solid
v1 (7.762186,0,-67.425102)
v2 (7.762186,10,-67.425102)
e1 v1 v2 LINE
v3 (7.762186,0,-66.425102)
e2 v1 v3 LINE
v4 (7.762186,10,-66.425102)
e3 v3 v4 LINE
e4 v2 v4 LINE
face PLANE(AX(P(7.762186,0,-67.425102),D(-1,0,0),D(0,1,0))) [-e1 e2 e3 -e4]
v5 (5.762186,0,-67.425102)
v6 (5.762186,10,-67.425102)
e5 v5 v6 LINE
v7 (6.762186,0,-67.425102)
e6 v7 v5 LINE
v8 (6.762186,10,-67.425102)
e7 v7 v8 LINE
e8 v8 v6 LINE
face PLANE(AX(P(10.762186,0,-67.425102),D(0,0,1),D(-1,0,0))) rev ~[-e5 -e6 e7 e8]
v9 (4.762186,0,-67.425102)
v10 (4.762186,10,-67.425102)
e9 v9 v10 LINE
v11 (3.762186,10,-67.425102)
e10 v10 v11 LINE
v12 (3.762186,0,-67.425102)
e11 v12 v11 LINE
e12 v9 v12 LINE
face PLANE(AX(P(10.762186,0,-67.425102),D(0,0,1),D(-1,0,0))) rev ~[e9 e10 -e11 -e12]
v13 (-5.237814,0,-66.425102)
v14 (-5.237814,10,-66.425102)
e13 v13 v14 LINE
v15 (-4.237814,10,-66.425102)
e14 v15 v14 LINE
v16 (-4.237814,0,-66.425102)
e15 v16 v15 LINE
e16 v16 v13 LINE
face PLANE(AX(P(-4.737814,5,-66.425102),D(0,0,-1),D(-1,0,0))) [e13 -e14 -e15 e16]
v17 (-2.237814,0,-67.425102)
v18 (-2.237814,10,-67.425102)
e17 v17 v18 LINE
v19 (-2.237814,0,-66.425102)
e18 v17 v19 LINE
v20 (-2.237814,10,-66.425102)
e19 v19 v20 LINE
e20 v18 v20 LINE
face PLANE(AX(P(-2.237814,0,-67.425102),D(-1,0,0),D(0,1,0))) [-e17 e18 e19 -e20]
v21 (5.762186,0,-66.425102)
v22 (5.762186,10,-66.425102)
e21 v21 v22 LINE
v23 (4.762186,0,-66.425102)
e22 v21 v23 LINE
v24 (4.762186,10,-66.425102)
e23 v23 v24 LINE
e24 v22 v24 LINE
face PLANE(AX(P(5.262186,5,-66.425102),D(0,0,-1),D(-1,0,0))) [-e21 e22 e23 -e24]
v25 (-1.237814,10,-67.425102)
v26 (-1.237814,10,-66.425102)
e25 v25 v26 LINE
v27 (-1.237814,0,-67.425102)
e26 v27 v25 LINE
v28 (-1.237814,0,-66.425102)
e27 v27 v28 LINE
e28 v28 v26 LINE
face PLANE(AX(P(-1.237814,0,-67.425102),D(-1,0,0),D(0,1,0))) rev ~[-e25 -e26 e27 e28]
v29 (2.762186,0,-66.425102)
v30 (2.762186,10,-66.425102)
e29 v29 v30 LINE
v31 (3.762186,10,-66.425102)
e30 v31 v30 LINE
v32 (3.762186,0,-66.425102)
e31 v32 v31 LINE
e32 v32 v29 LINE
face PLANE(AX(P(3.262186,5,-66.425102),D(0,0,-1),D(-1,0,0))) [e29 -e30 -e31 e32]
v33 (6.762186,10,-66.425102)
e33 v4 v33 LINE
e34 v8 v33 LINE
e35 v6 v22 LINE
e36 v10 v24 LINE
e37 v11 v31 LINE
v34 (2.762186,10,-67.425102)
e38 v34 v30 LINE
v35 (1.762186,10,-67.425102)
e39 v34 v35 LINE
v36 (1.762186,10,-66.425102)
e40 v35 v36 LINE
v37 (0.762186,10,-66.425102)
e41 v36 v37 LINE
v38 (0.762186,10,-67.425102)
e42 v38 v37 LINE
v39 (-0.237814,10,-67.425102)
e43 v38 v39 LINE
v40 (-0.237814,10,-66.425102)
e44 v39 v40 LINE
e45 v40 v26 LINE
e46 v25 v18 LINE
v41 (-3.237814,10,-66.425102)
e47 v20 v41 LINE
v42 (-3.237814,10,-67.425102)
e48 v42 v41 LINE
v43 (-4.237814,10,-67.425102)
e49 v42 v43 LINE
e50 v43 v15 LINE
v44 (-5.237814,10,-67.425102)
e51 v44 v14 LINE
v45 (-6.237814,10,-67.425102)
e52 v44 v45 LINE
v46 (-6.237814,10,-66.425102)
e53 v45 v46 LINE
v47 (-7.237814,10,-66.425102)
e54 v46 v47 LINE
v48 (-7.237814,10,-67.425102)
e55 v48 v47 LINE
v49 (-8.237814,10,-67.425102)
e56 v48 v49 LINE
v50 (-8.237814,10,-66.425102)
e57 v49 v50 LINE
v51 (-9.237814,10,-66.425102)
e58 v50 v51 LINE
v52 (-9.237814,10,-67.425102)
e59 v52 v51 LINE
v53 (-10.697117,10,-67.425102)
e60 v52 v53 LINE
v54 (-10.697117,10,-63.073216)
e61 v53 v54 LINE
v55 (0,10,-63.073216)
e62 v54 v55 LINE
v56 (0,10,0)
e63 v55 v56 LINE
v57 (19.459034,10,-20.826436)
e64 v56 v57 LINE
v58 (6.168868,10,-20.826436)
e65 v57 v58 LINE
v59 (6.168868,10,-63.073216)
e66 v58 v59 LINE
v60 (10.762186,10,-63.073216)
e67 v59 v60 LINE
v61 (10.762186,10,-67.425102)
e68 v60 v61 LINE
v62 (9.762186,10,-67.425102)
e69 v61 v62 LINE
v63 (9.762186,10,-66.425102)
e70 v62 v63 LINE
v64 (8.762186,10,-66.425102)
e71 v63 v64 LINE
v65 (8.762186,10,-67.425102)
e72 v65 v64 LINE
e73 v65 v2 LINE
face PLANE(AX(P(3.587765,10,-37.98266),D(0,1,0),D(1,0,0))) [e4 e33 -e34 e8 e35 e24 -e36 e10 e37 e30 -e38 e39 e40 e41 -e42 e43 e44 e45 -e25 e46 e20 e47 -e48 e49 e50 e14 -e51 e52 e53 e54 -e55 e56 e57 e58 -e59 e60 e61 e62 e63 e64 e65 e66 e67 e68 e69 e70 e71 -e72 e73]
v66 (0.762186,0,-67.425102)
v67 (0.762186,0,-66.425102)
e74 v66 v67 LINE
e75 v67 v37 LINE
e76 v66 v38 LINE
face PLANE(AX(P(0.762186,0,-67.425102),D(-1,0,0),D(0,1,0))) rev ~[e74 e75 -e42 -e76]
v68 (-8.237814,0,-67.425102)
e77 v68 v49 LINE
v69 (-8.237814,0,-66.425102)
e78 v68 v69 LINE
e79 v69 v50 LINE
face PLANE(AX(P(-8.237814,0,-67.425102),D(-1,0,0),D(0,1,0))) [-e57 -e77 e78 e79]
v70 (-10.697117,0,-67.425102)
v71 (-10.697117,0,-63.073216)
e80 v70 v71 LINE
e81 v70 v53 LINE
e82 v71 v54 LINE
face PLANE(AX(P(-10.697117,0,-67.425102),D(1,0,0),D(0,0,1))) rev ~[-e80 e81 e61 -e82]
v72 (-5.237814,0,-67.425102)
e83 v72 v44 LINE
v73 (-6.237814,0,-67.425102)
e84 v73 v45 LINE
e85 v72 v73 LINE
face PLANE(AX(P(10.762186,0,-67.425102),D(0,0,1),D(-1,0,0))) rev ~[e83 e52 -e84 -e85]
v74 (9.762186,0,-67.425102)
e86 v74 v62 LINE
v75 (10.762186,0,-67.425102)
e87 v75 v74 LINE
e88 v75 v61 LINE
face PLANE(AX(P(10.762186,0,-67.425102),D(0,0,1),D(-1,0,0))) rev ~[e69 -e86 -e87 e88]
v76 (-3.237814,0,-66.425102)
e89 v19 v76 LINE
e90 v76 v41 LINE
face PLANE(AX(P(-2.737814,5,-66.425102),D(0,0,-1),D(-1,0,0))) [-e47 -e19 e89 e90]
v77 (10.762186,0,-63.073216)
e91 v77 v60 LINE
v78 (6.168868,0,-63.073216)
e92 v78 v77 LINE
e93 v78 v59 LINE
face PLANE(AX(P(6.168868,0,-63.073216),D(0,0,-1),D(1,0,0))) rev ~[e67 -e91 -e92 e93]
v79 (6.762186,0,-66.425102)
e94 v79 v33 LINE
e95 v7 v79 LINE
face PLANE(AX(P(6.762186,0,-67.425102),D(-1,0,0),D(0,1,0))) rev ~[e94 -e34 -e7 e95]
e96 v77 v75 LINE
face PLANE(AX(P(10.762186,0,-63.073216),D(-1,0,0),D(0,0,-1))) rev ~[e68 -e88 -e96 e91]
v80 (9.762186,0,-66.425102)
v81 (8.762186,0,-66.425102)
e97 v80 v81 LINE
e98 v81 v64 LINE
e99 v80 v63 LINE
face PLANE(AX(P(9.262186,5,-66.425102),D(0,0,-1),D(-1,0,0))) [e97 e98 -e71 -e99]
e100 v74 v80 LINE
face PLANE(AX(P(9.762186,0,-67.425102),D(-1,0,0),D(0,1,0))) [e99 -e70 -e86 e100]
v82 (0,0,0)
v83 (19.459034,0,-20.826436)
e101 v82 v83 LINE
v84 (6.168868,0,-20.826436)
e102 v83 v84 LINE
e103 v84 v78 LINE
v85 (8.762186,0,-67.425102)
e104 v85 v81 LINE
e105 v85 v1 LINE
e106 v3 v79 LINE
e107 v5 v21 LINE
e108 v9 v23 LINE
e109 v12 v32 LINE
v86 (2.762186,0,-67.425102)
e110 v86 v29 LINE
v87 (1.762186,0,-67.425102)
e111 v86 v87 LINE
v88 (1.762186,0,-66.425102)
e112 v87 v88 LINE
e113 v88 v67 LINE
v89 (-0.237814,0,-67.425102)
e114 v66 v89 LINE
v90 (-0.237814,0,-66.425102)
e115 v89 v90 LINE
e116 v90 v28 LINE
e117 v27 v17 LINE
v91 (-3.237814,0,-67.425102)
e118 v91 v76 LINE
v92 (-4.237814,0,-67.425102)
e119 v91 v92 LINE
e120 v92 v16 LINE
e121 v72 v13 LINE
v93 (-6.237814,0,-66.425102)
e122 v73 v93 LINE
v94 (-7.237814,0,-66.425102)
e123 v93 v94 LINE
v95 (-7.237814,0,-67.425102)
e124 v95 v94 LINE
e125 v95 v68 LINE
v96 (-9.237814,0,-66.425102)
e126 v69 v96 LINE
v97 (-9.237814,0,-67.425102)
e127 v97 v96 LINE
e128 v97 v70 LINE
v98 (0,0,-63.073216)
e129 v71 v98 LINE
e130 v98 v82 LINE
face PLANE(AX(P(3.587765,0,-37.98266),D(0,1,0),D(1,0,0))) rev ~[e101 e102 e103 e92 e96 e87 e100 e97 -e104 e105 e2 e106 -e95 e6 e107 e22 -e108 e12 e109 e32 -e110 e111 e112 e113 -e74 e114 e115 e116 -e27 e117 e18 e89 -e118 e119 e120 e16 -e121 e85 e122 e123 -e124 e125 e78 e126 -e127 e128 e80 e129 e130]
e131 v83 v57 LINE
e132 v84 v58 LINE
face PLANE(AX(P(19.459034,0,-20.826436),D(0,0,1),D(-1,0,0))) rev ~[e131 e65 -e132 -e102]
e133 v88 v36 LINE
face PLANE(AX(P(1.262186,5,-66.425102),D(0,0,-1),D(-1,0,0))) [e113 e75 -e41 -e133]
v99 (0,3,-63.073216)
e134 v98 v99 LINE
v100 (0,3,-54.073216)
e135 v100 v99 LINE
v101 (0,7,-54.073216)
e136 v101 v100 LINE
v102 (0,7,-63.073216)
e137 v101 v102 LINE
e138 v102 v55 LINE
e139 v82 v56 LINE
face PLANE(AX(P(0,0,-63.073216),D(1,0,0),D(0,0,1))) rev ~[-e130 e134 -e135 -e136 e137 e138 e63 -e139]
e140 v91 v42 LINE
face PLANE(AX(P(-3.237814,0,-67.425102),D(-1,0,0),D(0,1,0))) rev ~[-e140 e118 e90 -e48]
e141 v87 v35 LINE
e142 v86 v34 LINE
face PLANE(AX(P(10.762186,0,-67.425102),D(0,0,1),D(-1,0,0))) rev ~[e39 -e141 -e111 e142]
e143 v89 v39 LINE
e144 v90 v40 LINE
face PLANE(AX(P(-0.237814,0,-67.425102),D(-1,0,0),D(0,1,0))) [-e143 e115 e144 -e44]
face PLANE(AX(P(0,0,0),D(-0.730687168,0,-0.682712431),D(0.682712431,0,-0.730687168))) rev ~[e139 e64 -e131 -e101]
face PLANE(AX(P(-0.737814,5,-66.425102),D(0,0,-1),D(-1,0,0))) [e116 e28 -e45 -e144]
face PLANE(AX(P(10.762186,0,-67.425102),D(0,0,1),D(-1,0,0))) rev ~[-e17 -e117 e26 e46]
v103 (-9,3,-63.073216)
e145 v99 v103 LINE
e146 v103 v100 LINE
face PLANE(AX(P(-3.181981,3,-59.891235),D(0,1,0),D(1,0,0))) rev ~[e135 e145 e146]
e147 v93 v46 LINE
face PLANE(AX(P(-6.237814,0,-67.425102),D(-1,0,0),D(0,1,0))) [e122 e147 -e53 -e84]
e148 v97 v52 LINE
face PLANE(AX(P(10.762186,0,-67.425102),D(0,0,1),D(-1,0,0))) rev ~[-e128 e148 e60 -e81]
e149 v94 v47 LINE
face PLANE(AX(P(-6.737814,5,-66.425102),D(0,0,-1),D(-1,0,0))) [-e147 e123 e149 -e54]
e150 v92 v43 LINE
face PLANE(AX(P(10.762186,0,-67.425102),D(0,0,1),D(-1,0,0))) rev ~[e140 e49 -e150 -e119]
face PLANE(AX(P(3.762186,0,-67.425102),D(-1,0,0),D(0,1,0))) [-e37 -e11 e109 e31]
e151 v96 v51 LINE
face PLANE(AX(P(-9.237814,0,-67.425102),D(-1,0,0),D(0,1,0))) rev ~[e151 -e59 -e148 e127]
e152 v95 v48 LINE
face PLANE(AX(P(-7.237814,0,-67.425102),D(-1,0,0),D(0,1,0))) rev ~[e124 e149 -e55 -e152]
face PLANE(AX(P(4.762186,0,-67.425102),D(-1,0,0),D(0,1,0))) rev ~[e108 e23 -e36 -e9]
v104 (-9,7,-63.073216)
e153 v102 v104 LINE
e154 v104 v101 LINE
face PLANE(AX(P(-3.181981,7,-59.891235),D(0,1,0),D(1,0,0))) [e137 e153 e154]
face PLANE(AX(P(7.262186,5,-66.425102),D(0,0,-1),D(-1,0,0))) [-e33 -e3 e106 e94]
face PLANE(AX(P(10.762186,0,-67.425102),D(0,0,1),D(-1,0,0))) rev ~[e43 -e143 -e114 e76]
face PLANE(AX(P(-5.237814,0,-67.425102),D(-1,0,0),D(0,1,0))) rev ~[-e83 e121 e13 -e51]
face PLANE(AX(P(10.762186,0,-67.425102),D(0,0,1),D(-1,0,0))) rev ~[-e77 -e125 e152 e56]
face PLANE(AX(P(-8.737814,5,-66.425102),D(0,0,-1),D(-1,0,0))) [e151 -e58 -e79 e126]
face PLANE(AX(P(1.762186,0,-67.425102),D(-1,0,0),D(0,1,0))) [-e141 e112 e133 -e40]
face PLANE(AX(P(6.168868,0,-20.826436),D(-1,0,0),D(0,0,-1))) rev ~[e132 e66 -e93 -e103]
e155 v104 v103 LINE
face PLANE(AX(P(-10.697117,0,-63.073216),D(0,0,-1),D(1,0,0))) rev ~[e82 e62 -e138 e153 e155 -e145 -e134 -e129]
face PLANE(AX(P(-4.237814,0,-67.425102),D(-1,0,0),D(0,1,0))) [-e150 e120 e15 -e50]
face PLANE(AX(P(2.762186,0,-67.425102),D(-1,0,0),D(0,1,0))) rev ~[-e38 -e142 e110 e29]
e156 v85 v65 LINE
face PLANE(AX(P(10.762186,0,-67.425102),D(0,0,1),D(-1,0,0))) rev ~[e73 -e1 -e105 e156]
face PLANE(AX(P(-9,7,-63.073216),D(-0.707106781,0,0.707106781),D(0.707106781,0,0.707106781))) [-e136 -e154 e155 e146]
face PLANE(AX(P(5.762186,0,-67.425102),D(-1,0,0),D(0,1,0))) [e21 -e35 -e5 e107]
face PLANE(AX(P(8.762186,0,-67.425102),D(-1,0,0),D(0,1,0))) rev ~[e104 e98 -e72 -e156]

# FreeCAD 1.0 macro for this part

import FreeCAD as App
import Part
import Sketcher
from FreeCAD import Vector


def add_polygon(sketch, points):
    """Adds a closed chain of lines whose ends are joined by coincident constraints."""
    first, n = sketch.GeometryCount, len(points)
    for a, b in zip(points, points[1:] + points[:1]):
        sketch.addGeometry(Part.LineSegment(App.Vector(*a, 0), App.Vector(*b, 0)), False)
    for i in range(n):
        sketch.addConstraint(Sketcher.Constraint("Coincident", first + i, 2, first + (i + 1) % n, 1))

doc = App.newDocument("Part")
body = doc.addObject("PartDesign::Body", "Body")

# Sketch on XZ plane
sketch1 = body.newObject("Sketcher::SketchObject", "Sketch")
sketch1.AttachmentSupport = (doc.getObject("XZ_Plane"), [""])
sketch1.MapMode = "FlatFace"
add_polygon(sketch1, [(0, 0), (19.5, -20.8), (6.2, -20.8), (6.2, -63.1), (10.8, -63.1), (10.8, -67.4), (-10.7, -67.4), (-10.7, -63.1), (0, -63.1)])  # lines 0-8
sketch1.addConstraint([
    Sketcher.Constraint("Horizontal", 1),
    Sketcher.Constraint("Vertical", 2),
    Sketcher.Constraint("Horizontal", 3),
    Sketcher.Constraint("Vertical", 4),
    Sketcher.Constraint("Horizontal", 5),
    Sketcher.Constraint("Vertical", 6),
    Sketcher.Constraint("Horizontal", 7),
    Sketcher.Constraint("Vertical", 8),
    Sketcher.Constraint("Coincident", 8, 2, -1, 1),
    Sketcher.Constraint("Horizontal", 3, 2, 6, 2),
    Sketcher.Constraint("DistanceX", 3, 1, 3, 2, 4.593318),
    Sketcher.Constraint("DistanceY", 2, 2, 2, 1, 42.24678),
    Sketcher.Constraint("DistanceX", 1, 2, 1, 1, 13.290166),
    Sketcher.Constraint("DistanceX", 5, 2, 5, 1, 21.459304),
    Sketcher.Constraint("DistanceX", 7, 1, 7, 2, 10.697117),
    Sketcher.Constraint("DistanceY", 4, 2, 4, 1, 4.351887),
    Sketcher.Constraint("DistanceY", 8, 1, 8, 2, 63.073216),
])
pad1 = body.newObject("PartDesign::Pad", "Pad")
pad1.Profile = sketch1
pad1.Length = 10
pad1.Reversed = True

# Sketch on XZ plane
sketch2 = body.newObject("Sketcher::SketchObject", "Sketch001")
sketch2.AttachmentSupport = (doc.getObject("XZ_Plane"), [""])
sketch2.MapMode = "FlatFace"
sketch2.AttachmentOffset = App.Placement(Vector(0, 0, -5), App.Rotation())
add_polygon(sketch2, [(0, -54), (-9, -63), (0, -63)])  # lines 0-2
sketch2.addConstraint([
    Sketcher.Constraint("Horizontal", 1),
    Sketcher.Constraint("Vertical", 2),
    Sketcher.Constraint("PointOnObject", 1, 2, -2),
    Sketcher.Constraint("Equal", 1, 2),
    Sketcher.Constraint("DistanceX", 1, 1, 1, 2, 9.0),
    Sketcher.Constraint("DistanceY", 0, 2, -1, 1, 63.073216),
])
pad2 = body.newObject("PartDesign::Pad", "Pad001")
pad2.Profile = sketch2
pad2.Type = "TwoLengths"
pad2.Length = 2
pad2.Length2 = 2

# Sketch on XY plane
sketch3 = body.newObject("Sketcher::SketchObject", "Sketch002")
sketch3.AttachmentSupport = (doc.getObject("XY_Plane"), [""])
sketch3.MapMode = "FlatFace"
sketch3.AttachmentOffset = App.Placement(Vector(0, 0, -67.425102), App.Rotation())
add_polygon(sketch3, [(9.8, 10), (9.8, 0), (8.8, 0), (8.8, 10)])  # lines 0-3
sketch3.addConstraint([
    Sketcher.Constraint("Vertical", 0),
    Sketcher.Constraint("Horizontal", 1),
    Sketcher.Constraint("Vertical", 2),
    Sketcher.Constraint("Horizontal", 3),
    Sketcher.Constraint("PointOnObject", 0, 2, -1),
    Sketcher.Constraint("DistanceX", 1, 2, 1, 1, 1.0),
    Sketcher.Constraint("DistanceY", 0, 2, 0, 1, 10.0),
    Sketcher.Constraint("DistanceX", -1, 1, 0, 2, 9.762186),
])
pocket1 = body.newObject("PartDesign::Pocket", "Pocket")
pocket1.Profile = sketch3
pocket1.Length = 1
pocket1.Reversed = True
doc.recompute()

linearpattern = body.newObject("PartDesign::LinearPattern", "LinearPattern")
linearpattern.Originals = [pocket1]
linearpattern.Direction = (doc.getObject("X_Axis"), [""])
linearpattern.Mode = "offset"
linearpattern.Offset = 2
linearpattern.Occurrences = 10
linearpattern.Reversed = True
body.Tip = linearpattern

doc.recompute()
